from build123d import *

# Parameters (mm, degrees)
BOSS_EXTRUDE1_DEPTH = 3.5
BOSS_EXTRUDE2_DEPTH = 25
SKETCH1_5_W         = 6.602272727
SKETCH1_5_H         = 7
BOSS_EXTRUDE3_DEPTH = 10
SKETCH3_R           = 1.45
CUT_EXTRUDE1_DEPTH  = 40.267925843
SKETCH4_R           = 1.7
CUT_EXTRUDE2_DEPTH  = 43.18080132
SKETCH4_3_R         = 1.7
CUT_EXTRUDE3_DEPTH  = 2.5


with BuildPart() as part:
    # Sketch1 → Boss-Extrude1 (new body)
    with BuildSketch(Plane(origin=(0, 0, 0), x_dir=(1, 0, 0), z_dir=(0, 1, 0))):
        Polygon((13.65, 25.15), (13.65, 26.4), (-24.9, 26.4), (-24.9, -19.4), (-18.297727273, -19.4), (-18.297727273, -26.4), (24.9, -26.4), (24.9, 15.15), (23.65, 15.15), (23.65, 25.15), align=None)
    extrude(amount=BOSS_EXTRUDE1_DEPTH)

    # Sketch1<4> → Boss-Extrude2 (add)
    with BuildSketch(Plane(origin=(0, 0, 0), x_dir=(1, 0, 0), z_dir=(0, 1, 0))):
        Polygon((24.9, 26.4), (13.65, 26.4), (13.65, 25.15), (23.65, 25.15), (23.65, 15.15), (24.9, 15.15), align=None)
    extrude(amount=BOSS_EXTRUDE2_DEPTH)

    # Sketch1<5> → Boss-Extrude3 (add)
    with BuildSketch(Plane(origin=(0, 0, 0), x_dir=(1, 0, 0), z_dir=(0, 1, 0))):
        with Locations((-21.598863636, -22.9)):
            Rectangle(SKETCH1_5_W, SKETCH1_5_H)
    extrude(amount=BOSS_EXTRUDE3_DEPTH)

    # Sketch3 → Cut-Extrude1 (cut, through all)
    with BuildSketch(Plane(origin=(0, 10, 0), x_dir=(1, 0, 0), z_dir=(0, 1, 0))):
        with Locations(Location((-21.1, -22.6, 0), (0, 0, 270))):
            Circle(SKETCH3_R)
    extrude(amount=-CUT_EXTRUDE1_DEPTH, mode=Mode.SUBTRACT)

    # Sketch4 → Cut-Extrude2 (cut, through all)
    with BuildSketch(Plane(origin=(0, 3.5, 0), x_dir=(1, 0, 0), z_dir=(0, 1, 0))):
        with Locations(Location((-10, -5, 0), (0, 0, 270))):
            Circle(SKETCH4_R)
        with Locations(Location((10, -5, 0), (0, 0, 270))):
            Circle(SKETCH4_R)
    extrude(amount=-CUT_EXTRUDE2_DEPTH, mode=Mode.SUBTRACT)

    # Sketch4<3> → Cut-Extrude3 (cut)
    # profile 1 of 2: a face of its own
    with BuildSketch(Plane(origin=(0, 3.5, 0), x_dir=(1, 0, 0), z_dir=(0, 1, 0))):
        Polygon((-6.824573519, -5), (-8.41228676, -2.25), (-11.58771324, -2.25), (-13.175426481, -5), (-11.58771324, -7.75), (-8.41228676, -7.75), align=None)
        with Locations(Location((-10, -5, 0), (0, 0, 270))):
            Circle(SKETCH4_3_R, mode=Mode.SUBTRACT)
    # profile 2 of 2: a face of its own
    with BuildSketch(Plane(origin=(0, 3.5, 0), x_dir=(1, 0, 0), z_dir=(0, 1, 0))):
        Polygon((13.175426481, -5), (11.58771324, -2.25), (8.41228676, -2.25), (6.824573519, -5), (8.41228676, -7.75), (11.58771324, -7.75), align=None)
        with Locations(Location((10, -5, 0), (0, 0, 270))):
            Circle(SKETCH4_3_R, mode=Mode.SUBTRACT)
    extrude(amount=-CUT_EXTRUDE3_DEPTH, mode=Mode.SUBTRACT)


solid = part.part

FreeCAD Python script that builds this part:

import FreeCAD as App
import Part
import Sketcher
Q = App.Units.Quantity


def add_polygon(sketch, points):
    """Adds a closed chain of lines whose ends are joined by coincident constraints."""
    first, n = sketch.GeometryCount, len(points)
    for a, b in zip(points, points[1:] + points[:1]):
        sketch.addGeometry(Part.LineSegment(App.Vector(*a, 0), App.Vector(*b, 0)), False)
    for i in range(n):
        sketch.addConstraint(Sketcher.Constraint("Coincident", first + i, 2, first + (i + 1) % n, 1))

doc = App.newDocument("Part")
body = doc.addObject("PartDesign::Body", "Body")

# Sketch on XZ plane
sketch1 = doc.addObject("Sketcher::SketchObject", "Sketch")
body.addObject(sketch1)
sketch1.AttachmentSupport = (doc.XZ_Plane, [""])
sketch1.MapMode = "FlatFace"
add_polygon(sketch1, [(13.65, -25.15), (13.65, -26.4), (-24.9, -26.4), (-24.9, 19.4), (-18.297727, 19.4), (-18.297727, 26.4), (24.9, 26.4), (24.9, -15.15), (23.65, -15.15), (23.65, -25.15)])  # lines 0-9
sketch1.addConstraint([
    Sketcher.Constraint("Vertical", 0),
    Sketcher.Constraint("Horizontal", 1),
    Sketcher.Constraint("Vertical", 2),
    Sketcher.Constraint("Horizontal", 3),
    Sketcher.Constraint("Vertical", 4),
    Sketcher.Constraint("Horizontal", 5),
    Sketcher.Constraint("Vertical", 6),
    Sketcher.Constraint("Horizontal", 7),
    Sketcher.Constraint("Vertical", 8),
    Sketcher.Constraint("Horizontal", 9),
    Sketcher.Constraint("Symmetric", 1, 2, 5, 2, -1, 1),
    Sketcher.Constraint("Equal", 7, 0),
    Sketcher.Constraint("Equal", 9, 8),
    Sketcher.Constraint("DistanceX", 9, 2, 9, 1, Q("10 mm")),
    Sketcher.Constraint("DistanceY", 4, 1, 4, 2, Q("7 mm")),
    Sketcher.Constraint("DistanceY", 2, 1, 2, 2, Q("45.8 mm")),
    Sketcher.Constraint("DistanceX", 1, 2, 1, 1, Q("38.55 mm")),
    Sketcher.Constraint("DistanceX", 7, 2, 7, 1, Q("1.25 mm")),
    Sketcher.Constraint("DistanceX", 3, 1, 3, 2, Q("6.602273 mm")),
])
pad1 = doc.addObject("PartDesign::Pad", "Pad")
body.addObject(pad1)
pad1.Profile = sketch1
pad1.Length = 3.5
pad1.Reversed = True

# Sketch on XZ plane
sketch2 = doc.addObject("Sketcher::SketchObject", "Sketch001")
body.addObject(sketch2)
sketch2.AttachmentSupport = (doc.XZ_Plane, [""])
sketch2.MapMode = "FlatFace"
add_polygon(sketch2, [(24.9, -26.4), (13.65, -26.4), (13.65, -25.15), (23.65, -25.15), (23.65, -15.15), (24.9, -15.15)])  # lines 0-5
sketch2.addConstraint([
    Sketcher.Constraint("Horizontal", 0),
    Sketcher.Constraint("Vertical", 1),
    Sketcher.Constraint("Horizontal", 2),
    Sketcher.Constraint("Vertical", 3),
    Sketcher.Constraint("Horizontal", 4),
    Sketcher.Constraint("Vertical", 5),
    Sketcher.Constraint("Equal", 4, 1),
    Sketcher.Constraint("Equal", 2, 3),
    Sketcher.Constraint("DistanceX", 2, 1, 2, 2, Q("10 mm")),
    Sketcher.Constraint("DistanceX", 0, 2, 0, 1, Q("11.25 mm")),
    Sketcher.Constraint("DistanceY", 0, 2, -1, 1, Q("26.4 mm")),
    Sketcher.Constraint("DistanceX", -1, 1, 4, 2, Q("24.9 mm")),
])
pad2 = doc.addObject("PartDesign::Pad", "Pad001")
body.addObject(pad2)
pad2.Profile = sketch2
pad2.Length = 25
pad2.Reversed = True

# Sketch on XZ plane
sketch3 = doc.addObject("Sketcher::SketchObject", "Sketch002")
body.addObject(sketch3)
sketch3.AttachmentSupport = (doc.XZ_Plane, [""])
sketch3.MapMode = "FlatFace"
add_polygon(sketch3, [(-24.9, 19.4), (-24.9, 26.4), (-18.297727, 26.4), (-18.297727, 19.4)])  # lines 0-3
sketch3.addConstraint([
    Sketcher.Constraint("Vertical", 0),
    Sketcher.Constraint("Horizontal", 1),
    Sketcher.Constraint("Vertical", 2),
    Sketcher.Constraint("Horizontal", 3),
    Sketcher.Constraint("DistanceY", 0, 1, 0, 2, Q("7 mm")),
    Sketcher.Constraint("DistanceX", 0, 2, -1, 1, Q("24.9 mm")),
    Sketcher.Constraint("DistanceY", -1, 1, 0, 2, Q("26.4 mm")),
    Sketcher.Constraint("DistanceX", 1, 1, 1, 2, Q("6.602273 mm")),
])
pad3 = doc.addObject("PartDesign::Pad", "Pad002")
body.addObject(pad3)
pad3.Profile = sketch3
pad3.Length = 10
pad3.Reversed = True

# Sketch on XZ plane
sketch4 = doc.addObject("Sketcher::SketchObject", "Sketch003")
body.addObject(sketch4)
sketch4.AttachmentSupport = (doc.XZ_Plane, [""])
sketch4.MapMode = "FlatFace"
sketch4.AttachmentOffset = App.Placement(App.Vector(0, 0, -10), App.Rotation())
sketch4.addGeometry(Part.Circle(App.Vector(-21.1, 22.6, 0), App.Vector(0, 0, 1), 1.45), False)
sketch4.addConstraint([
    Sketcher.Constraint("Diameter", 0, Q("2.9 mm")),
    Sketcher.Constraint("DistanceX", 0, 3, -1, 1, Q("21.1 mm")),
    Sketcher.Constraint("DistanceY", -1, 1, 0, 3, Q("22.6 mm")),
])
pocket1 = doc.addObject("PartDesign::Pocket", "Pocket")
body.addObject(pocket1)
pocket1.Profile = sketch4
pocket1.Type = "ThroughAll"
pocket1.Reversed = True

# Sketch on XZ plane
sketch5 = doc.addObject("Sketcher::SketchObject", "Sketch004")
body.addObject(sketch5)
sketch5.AttachmentSupport = (doc.XZ_Plane, [""])
sketch5.MapMode = "FlatFace"
sketch5.AttachmentOffset = App.Placement(App.Vector(0, 0, -3.5), App.Rotation())
sketch5.addGeometry([
    Part.Circle(App.Vector(-10, 5, 0), App.Vector(0, 0, 1), 1.7),
    Part.Circle(App.Vector(10, 5, 0), App.Vector(0, 0, 1), 1.7),
], False)
sketch5.addConstraint([
    Sketcher.Constraint("Equal", 0, 1),
    Sketcher.Constraint("Symmetric", 0, 3, 1, 3, -2),
    Sketcher.Constraint("Diameter", 0, Q("3.4 mm")),
    Sketcher.Constraint("DistanceX", 0, 3, -1, 1, Q("10 mm")),
    Sketcher.Constraint("DistanceY", -1, 1, 0, 3, Q("5 mm")),
])
pocket2 = doc.addObject("PartDesign::Pocket", "Pocket001")
body.addObject(pocket2)
pocket2.Profile = sketch5
pocket2.Type = "ThroughAll"
pocket2.Reversed = True

# Sketch on XZ plane
sketch6 = doc.addObject("Sketcher::SketchObject", "Sketch005")
body.addObject(sketch6)
sketch6.AttachmentSupport = (doc.XZ_Plane, [""])
sketch6.MapMode = "FlatFace"
sketch6.AttachmentOffset = App.Placement(App.Vector(0, 0, -3.5), App.Rotation())
add_polygon(sketch6, [(-6.824574, 5), (-8.412287, 2.25), (-11.587713, 2.25), (-13.175426, 5), (-11.587713, 7.75), (-8.412287, 7.75)])  # lines 0-5
sketch6.addGeometry(Part.Circle(App.Vector(-10, 5, 0), App.Vector(0, 0, 1), 1.7), False)  # 6
add_polygon(sketch6, [(13.175426, 5), (11.587713, 2.25), (8.412287, 2.25), (6.824574, 5), (8.412287, 7.75), (11.587713, 7.75)])  # lines 7-12
sketch6.addGeometry(Part.Circle(App.Vector(10, 5, 0), App.Vector(0, 0, 1), 1.7), False)  # 13
sketch6.addConstraint([
    Sketcher.Constraint("Horizontal", 1),
    Sketcher.Constraint("Horizontal", 4),
    Sketcher.Constraint("Horizontal", 8),
    Sketcher.Constraint("Horizontal", 11),
    Sketcher.Constraint("Equal", 6, 13),
    Sketcher.Constraint("Symmetric", 6, 3, 13, 3, -2),
    Sketcher.Constraint("Symmetric", 1, 2, 7, 2, -2),
    Sketcher.Constraint("Symmetric", 5, 2, 9, 2, -2),
    Sketcher.Constraint("Symmetric", 4, 2, 10, 2, -2),
    Sketcher.Constraint("Symmetric", 2, 2, 12, 2, -2),
    Sketcher.Constraint("Parallel", 0, 3),
    Sketcher.Constraint("Parallel", 2, 5),
    Sketcher.Constraint("Parallel", 3, 7),
    Sketcher.Constraint("Parallel", 5, 9),
    Sketcher.Constraint("Parallel", 9, 12),
    Sketcher.Constraint("Horizontal", 13, 3, 2, 2),
    Sketcher.Constraint("Horizontal", 2, 2, 5, 2),
    Sketcher.Constraint("Vertical", 1, 2, 3, 2),
    Sketcher.Constraint("Diameter", 6, Q("3.4 mm")),
    Sketcher.Constraint("Angle", 0, Q("-120 deg")),
    Sketcher.Constraint("DistanceX", 6, 3, -1, 1, Q("10 mm")),
    Sketcher.Constraint("DistanceY", -1, 1, 6, 3, Q("5 mm")),
    Sketcher.Constraint("DistanceX", 0, 2, 7, 2, Q("20 mm")),
    Sketcher.Constraint("DistanceY", 1, 2, 3, 2, Q("5.5 mm")),
    Sketcher.Constraint("DistanceX", 1, 2, 1, 1, Q("3.175426 mm")),
])
pocket3 = doc.addObject("PartDesign::Pocket", "Pocket002")
body.addObject(pocket3)
pocket3.Profile = sketch6
pocket3.Length = 2.5
pocket3.Reversed = True

doc.recompute()
